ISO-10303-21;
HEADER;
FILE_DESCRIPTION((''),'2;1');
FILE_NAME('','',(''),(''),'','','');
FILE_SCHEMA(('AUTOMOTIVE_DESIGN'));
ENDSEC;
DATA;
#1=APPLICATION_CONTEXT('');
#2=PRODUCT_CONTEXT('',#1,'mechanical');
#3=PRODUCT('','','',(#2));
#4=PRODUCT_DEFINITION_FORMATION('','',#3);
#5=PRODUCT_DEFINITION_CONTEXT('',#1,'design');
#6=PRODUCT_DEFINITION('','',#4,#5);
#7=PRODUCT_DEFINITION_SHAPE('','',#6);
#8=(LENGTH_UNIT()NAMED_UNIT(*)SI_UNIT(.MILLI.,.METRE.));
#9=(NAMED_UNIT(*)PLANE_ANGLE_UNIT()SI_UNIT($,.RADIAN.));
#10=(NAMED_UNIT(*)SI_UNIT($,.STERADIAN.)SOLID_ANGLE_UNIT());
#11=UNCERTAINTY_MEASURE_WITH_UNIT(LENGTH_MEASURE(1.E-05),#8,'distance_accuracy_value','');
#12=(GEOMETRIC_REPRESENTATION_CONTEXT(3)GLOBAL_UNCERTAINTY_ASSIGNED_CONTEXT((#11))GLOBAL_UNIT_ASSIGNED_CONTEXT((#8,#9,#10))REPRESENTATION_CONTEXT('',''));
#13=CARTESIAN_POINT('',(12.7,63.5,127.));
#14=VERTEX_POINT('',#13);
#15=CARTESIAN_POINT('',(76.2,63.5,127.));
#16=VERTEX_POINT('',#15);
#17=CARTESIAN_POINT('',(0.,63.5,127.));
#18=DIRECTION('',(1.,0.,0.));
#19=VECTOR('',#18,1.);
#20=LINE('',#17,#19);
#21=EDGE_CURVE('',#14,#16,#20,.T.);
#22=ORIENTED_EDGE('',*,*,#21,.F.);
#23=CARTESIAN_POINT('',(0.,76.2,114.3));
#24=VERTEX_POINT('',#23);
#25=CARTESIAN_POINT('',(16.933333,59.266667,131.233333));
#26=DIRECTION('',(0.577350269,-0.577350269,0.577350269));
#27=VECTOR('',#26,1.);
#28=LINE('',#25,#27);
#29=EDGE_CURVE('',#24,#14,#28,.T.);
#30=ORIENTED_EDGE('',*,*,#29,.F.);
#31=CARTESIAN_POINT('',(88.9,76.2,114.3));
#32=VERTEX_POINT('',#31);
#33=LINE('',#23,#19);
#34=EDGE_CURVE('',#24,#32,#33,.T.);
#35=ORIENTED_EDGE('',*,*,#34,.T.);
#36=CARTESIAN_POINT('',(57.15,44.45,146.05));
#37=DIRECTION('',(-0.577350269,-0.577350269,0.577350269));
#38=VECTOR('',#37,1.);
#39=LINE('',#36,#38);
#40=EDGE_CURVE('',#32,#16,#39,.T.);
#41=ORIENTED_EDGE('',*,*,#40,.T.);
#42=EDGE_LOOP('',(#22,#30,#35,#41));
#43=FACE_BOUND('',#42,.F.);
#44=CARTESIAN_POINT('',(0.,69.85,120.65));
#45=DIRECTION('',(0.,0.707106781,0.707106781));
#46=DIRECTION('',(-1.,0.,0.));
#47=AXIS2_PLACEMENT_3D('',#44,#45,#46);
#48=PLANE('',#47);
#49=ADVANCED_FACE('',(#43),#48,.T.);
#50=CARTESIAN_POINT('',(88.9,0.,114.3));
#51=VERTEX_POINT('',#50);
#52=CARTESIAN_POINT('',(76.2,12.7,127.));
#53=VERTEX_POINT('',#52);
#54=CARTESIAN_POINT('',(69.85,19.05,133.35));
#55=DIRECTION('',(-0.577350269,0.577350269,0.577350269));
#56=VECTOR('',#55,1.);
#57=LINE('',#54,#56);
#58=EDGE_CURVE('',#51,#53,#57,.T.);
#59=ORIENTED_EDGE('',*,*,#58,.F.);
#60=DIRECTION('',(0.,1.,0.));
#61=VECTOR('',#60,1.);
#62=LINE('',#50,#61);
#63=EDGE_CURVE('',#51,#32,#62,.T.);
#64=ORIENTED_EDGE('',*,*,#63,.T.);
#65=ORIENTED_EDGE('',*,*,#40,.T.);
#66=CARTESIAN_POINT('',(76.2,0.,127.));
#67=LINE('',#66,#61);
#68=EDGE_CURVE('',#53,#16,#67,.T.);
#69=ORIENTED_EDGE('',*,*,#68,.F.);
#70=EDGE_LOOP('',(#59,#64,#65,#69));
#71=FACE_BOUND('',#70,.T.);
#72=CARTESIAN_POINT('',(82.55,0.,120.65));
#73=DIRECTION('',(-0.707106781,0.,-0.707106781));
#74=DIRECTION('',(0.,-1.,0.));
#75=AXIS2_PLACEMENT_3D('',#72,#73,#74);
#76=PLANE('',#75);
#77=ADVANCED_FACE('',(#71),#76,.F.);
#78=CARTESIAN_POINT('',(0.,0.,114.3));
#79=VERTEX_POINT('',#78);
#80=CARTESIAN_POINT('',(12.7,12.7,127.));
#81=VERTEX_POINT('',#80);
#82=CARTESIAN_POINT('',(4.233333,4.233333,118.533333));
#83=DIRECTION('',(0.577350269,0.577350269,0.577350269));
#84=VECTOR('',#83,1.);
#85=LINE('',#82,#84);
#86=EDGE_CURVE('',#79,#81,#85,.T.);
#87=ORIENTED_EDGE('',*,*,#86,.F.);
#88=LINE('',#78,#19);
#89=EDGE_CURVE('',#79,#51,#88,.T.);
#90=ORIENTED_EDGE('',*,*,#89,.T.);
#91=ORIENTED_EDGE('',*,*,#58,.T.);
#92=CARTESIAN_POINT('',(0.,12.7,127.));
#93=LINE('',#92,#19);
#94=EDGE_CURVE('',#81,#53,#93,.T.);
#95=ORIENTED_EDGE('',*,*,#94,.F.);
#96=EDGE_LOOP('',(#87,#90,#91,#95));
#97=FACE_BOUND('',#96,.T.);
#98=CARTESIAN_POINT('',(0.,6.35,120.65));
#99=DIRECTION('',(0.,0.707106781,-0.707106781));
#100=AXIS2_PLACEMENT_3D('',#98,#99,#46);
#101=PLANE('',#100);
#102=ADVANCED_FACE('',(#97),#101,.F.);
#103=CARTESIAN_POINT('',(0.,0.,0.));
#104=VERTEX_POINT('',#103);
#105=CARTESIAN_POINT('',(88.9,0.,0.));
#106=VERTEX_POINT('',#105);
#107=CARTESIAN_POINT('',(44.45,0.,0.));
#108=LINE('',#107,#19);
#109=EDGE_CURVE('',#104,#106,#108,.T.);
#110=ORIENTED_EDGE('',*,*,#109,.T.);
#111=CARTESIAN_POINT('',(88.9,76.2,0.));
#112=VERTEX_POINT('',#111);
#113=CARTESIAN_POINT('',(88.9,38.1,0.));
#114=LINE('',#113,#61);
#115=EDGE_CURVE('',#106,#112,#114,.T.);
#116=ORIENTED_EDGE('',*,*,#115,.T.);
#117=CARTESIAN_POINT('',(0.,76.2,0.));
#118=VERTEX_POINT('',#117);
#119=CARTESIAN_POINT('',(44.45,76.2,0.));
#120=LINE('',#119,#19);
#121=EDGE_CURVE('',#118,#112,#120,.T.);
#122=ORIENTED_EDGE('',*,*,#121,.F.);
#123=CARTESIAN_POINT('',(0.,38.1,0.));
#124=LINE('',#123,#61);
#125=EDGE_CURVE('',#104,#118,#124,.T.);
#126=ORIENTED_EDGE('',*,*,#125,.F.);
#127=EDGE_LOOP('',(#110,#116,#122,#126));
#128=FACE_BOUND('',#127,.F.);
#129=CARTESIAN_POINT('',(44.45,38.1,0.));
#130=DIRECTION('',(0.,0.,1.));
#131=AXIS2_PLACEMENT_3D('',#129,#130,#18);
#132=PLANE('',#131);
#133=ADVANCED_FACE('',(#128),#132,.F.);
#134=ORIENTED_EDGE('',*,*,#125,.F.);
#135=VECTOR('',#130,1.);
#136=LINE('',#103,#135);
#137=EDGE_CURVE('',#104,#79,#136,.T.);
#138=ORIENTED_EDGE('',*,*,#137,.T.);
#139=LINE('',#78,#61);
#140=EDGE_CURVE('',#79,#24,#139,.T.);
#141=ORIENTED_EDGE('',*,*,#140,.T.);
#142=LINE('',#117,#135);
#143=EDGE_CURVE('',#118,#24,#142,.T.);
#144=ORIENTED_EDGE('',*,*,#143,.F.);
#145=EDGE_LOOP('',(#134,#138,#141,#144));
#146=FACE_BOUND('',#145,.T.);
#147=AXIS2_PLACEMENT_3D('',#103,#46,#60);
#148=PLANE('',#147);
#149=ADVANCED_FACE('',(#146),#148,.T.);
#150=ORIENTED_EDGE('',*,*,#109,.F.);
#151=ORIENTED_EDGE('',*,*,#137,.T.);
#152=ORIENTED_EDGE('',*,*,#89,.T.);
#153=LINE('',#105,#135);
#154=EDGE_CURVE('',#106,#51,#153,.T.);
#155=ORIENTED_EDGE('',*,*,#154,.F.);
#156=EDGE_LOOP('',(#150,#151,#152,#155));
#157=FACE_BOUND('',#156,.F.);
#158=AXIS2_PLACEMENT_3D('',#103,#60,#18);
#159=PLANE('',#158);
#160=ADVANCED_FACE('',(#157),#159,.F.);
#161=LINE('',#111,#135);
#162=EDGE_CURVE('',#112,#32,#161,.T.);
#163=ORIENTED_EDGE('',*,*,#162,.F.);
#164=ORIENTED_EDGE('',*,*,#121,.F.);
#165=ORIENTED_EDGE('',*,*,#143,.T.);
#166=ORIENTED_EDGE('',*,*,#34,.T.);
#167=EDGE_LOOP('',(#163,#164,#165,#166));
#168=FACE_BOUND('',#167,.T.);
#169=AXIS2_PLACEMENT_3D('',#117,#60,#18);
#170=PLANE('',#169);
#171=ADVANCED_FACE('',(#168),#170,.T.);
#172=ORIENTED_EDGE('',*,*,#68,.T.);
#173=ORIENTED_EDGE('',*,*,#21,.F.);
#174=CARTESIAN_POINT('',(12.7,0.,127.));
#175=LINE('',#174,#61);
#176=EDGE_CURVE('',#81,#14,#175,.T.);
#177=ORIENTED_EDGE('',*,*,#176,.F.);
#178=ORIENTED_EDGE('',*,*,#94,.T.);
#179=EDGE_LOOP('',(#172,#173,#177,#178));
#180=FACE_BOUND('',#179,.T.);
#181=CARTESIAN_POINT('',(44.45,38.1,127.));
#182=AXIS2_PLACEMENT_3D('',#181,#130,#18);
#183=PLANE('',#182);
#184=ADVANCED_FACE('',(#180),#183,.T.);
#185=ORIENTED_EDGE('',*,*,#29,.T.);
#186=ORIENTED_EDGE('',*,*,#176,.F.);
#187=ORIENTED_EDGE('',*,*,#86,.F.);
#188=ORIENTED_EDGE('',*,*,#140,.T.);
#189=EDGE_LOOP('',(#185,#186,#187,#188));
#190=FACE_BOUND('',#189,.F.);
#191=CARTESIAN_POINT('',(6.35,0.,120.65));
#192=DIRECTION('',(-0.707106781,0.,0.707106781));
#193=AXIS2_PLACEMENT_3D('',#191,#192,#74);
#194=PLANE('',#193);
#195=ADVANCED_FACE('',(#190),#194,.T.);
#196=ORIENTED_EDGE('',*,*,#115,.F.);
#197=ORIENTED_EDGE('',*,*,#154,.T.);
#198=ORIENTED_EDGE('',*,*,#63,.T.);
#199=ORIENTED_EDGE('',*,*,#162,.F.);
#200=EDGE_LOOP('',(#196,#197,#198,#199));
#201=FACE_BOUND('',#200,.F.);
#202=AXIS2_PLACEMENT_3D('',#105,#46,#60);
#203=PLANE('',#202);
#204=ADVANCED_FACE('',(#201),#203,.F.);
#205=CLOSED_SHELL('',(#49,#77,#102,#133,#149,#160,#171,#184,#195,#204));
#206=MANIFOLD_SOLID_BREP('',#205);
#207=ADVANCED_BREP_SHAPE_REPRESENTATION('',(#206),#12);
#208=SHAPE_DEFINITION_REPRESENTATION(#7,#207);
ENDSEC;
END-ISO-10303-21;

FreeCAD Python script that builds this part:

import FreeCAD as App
import Part
import Sketcher

V = App.Vector
Q = App.Units.Quantity


def edges_at(feature, points):
    """Names of the edges that pass closest to the given points."""
    edges = feature.Shape.Edges
    near = lambda p: min(range(len(edges)), key=lambda i: edges[i].distToShape(Part.Vertex(*p))[0])
    return sorted({f"Edge{near(p) + 1}" for p in points})


def add_polygon(sketch, points):
    """Adds a closed chain of lines whose ends are joined by coincident constraints."""
    first, n = sketch.GeometryCount, len(points)
    for a, b in zip(points, points[1:] + points[:1]):
        sketch.addGeometry(Part.LineSegment(App.Vector(*a, 0), App.Vector(*b, 0)), False)
    for i in range(n):
        sketch.addConstraint(Sketcher.Constraint("Coincident", first + i, 2, first + (i + 1) % n, 1))

doc = App.newDocument("Part")
body = doc.addObject("PartDesign::Body", "Body")

# Sketch on XY plane
sketch1 = body.newObject("Sketcher::SketchObject", "Sketch")
sketch1.AttachmentSupport = (doc.getObject("XY_Plane"), [""])
sketch1.MapMode = "FlatFace"
add_polygon(sketch1, [(0, 76.2), (0, 0), (88.9, 0), (88.9, 76.2)])  # lines 0-3
sketch1.addConstraint([
    Sketcher.Constraint("Vertical", 0),
    Sketcher.Constraint("Horizontal", 1),
    Sketcher.Constraint("Vertical", 2),
    Sketcher.Constraint("Horizontal", 3),
    Sketcher.Constraint("Coincident", 0, 2, -1, 1),
    Sketcher.Constraint("DistanceY", 0, 2, 0, 1, Q("3 in")),
    Sketcher.Constraint("DistanceX", 1, 1, 1, 2, Q("3.5 in")),
])
pad1 = body.newObject("PartDesign::Pad", "Pad")
pad1.Profile = sketch1
pad1.Length = Q("5 in")
doc.recompute()

chamfer = body.newObject("PartDesign::Chamfer", "Chamfer")
chamfer.Base = (pad1, edges_at(pad1, [
    (44.45, 0, 127),
    (88.9, 38.1, 127),
    (44.45, 76.2, 127),
    (0, 38.1, 127),
]))
chamfer.ChamferType = "Two distances"
chamfer.Size = Q("0.5 in")
chamfer.Size2 = Q("0.5 in")

doc.recompute()
